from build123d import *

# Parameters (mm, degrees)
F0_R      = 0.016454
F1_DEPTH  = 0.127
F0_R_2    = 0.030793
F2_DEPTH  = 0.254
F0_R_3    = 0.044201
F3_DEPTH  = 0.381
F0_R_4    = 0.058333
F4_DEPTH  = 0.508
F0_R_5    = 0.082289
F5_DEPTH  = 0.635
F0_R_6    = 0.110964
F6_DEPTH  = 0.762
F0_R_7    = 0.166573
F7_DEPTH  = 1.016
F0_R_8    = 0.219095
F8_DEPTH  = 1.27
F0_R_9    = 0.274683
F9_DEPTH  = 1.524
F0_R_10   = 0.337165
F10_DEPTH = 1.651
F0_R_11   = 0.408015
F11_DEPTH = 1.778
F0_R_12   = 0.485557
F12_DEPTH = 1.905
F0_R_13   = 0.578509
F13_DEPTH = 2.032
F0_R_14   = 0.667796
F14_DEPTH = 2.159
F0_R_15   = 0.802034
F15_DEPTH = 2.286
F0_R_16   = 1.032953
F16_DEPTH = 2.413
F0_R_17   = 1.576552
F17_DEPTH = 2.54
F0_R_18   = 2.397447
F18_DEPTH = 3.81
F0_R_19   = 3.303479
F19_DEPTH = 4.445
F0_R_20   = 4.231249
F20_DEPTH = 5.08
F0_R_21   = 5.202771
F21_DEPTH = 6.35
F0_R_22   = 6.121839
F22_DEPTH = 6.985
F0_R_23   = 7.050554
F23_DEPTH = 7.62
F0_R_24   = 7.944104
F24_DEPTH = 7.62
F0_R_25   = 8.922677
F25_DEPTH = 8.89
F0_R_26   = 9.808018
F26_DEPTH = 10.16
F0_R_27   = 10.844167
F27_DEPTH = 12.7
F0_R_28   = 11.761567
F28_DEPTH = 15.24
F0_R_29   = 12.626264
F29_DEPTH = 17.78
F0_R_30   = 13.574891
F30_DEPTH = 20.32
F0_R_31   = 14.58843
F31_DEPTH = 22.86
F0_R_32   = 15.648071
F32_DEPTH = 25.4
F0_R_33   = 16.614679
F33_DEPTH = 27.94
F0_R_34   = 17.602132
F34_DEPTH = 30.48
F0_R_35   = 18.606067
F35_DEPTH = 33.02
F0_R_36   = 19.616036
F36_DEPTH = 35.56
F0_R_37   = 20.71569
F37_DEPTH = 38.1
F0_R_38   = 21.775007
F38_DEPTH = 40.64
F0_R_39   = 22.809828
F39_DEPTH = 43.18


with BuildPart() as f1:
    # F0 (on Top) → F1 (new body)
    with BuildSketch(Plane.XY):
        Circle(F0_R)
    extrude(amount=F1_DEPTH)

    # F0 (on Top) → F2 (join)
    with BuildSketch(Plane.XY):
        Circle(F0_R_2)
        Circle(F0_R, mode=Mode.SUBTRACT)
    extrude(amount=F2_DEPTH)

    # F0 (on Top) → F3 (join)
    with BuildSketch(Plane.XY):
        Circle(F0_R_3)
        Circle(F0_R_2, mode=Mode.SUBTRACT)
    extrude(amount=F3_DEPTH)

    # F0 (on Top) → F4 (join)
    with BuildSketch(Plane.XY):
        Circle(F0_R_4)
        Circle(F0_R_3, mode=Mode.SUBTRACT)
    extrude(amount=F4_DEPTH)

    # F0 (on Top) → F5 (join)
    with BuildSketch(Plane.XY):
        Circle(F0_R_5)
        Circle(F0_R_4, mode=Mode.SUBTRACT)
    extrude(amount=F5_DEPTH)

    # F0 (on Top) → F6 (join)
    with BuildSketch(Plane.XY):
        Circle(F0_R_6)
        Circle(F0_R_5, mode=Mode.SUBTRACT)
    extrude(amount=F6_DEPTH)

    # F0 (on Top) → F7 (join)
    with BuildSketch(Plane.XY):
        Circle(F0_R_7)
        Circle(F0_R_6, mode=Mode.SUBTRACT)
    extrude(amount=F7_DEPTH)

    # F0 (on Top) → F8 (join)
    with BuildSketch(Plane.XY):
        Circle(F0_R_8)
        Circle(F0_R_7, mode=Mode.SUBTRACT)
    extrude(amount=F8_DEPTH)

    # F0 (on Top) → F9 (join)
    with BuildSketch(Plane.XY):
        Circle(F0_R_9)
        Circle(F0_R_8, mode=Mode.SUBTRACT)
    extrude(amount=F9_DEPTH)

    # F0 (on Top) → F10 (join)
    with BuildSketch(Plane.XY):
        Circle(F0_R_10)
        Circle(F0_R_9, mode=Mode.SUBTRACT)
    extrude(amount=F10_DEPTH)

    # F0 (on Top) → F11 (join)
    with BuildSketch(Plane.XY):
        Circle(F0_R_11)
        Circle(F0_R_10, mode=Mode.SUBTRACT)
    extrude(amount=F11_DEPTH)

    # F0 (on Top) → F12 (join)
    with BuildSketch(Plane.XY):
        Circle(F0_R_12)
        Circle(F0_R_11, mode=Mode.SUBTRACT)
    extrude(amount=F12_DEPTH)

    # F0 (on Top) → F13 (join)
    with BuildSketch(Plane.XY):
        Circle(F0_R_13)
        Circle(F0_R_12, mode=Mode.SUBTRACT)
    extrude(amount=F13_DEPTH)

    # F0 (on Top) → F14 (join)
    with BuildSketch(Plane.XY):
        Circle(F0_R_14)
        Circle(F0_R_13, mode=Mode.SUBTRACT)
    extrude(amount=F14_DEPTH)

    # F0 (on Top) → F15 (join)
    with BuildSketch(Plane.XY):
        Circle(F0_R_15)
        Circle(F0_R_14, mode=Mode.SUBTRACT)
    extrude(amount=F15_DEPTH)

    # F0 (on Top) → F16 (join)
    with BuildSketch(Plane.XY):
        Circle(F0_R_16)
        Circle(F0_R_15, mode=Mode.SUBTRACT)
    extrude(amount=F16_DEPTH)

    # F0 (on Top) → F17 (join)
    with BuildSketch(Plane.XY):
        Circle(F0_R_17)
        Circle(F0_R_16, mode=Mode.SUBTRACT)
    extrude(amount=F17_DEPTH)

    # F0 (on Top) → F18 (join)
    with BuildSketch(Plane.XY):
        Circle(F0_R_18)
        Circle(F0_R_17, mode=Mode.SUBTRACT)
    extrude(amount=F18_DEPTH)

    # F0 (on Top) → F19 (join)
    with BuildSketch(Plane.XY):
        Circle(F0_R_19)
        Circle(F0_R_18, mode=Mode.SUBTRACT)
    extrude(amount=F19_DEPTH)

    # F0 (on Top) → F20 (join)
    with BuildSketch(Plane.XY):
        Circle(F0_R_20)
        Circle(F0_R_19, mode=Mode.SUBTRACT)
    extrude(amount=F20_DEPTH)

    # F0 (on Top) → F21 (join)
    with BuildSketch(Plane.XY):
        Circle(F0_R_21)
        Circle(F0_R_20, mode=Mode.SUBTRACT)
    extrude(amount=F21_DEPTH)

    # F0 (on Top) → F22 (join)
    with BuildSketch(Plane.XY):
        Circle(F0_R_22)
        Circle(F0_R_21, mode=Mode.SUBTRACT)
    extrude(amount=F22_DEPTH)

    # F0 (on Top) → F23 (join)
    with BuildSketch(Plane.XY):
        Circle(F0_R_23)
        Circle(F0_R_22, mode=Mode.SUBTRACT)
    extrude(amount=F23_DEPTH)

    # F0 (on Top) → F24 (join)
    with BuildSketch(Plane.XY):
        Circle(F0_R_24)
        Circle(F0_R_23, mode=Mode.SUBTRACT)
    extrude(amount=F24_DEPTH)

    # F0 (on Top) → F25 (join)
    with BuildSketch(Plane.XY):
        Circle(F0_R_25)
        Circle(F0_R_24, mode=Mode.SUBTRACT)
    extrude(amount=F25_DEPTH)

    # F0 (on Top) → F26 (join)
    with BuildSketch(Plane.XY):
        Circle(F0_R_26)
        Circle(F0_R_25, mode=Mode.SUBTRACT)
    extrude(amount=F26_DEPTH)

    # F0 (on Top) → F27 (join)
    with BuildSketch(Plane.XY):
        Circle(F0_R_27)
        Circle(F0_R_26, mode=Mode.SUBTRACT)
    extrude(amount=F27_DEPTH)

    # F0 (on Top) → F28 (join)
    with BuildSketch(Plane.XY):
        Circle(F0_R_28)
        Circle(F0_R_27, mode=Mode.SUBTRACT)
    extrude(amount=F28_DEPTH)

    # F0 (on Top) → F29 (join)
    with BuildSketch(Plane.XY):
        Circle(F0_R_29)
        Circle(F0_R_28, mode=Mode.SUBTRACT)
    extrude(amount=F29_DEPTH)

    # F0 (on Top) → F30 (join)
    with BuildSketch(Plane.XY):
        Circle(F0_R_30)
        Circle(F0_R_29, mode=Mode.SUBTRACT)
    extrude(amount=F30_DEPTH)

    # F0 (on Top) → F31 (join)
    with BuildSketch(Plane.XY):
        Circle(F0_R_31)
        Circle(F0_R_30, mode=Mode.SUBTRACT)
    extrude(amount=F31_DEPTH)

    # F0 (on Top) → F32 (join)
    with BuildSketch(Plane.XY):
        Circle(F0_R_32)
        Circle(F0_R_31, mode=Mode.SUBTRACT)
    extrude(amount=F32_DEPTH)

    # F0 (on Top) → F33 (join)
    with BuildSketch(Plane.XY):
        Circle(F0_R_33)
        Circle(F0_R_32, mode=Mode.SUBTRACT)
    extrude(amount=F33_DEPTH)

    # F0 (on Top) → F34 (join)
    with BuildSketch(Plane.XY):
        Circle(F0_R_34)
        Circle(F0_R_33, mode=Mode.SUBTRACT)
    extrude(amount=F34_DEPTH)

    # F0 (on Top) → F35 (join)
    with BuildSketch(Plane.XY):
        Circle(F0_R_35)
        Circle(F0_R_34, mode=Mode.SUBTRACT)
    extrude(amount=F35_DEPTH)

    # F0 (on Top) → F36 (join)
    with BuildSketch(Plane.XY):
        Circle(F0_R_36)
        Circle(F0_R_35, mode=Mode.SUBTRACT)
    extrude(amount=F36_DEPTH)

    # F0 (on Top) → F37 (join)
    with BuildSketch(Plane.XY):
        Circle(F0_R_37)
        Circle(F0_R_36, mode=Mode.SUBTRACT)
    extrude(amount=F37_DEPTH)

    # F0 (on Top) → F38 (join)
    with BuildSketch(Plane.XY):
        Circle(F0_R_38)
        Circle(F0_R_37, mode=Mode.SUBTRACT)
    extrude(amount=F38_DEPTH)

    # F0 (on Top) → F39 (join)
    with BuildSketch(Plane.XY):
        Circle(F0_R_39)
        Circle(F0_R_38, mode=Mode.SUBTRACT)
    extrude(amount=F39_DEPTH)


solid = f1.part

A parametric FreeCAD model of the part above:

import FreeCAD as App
import Part
import Sketcher
from FreeCAD import Vector
Q = App.Units.Quantity

doc = App.newDocument("Part")
params = doc.addObject("Spreadsheet::Sheet", "Params")
for row, (alias, value) in enumerate([
    ("pad1_length", "0.005 in"),
    ("pad2_length", "0.01 in"),
    ("pad3_length", "0.015 in"),
    ("pad4_length", "0.02 in"),
    ("pad5_length", "0.025 in"),
    ("pad6_length", "0.03 in"),
    ("pad7_length", "0.04 in"),
    ("pad8_length", "0.05 in"),
    ("pad9_length", "0.06 in"),
    ("pad10_length", "0.065 in"),
    ("pad11_length", "0.07 in"),
    ("pad12_length", "0.075 in"),
    ("pad13_length", "0.08 in"),
    ("pad14_length", "0.085 in"),
    ("pad15_length", "0.09 in"),
    ("pad16_length", "0.095 in"),
    ("pad17_length", "0.1 in"),
    ("pad18_length", "0.15 in"),
    ("pad19_length", "0.175 in"),
    ("pad20_length", "0.2 in"),
    ("pad21_length", "0.25 in"),
    ("pad22_length", "0.275 in"),
    ("pad23_length", "0.3 in"),
    ("pad24_length", "0.3 in"),
    ("pad25_length", "0.35 in"),
    ("pad26_length", "0.4 in"),
    ("pad27_length", "0.5 in"),
    ("pad28_length", "0.6 in"),
    ("pad29_length", "0.7 in"),
    ("pad30_length", "0.8 in"),
    ("pad31_length", "0.9 in"),
    ("pad32_length", "1 in"),
    ("pad33_length", "1.1 in"),
    ("pad34_length", "1.2 in"),
    ("pad35_length", "1.3 in"),
    ("pad36_length", "1.4 in"),
    ("pad37_length", "1.5 in"),
    ("pad38_length", "1.6 in"),
    ("pad39_length", "1.7 in"),
], start=1):
    params.set(f"A{row}", alias)
    params.set(f"B{row}", "=" + value)
    params.setAlias(f"B{row}", alias)

body = doc.addObject("PartDesign::Body", "Body")

sketch1 = doc.addObject("Sketcher::SketchObject", "Sketch")
body.addObject(sketch1)
sketch1.AttachmentSupport = (doc.XY_Plane, [""])
sketch1.MapMode = "FlatFace"
sketch1.addGeometry(Part.Circle(Vector(0, 0, 0), Vector(0, 0, 1), 0.016), False)
sketch1.addConstraint(Sketcher.Constraint("Coincident", 0, 3, -1, 1))
sketch1.addConstraint(Sketcher.Constraint("Diameter", 0, Q("0.032908 mm")))
pad1 = doc.addObject("PartDesign::Pad", "Pad")
body.addObject(pad1)
pad1.Profile = sketch1
pad1.setExpression("Length", "Params.pad1_length")

sketch2 = doc.addObject("Sketcher::SketchObject", "Sketch001")
body.addObject(sketch2)
sketch2.AttachmentSupport = (doc.XY_Plane, [""])
sketch2.MapMode = "FlatFace"
sketch2.addGeometry(Part.Circle(Vector(0, 0, 0), Vector(0, 0, 1), 0.031), False)
sketch2.addGeometry(Part.Circle(Vector(0, 0, 0), Vector(0, 0, 1), 0.016), False)
sketch2.addConstraint(Sketcher.Constraint("Coincident", 0, 3, -1, 1))
sketch2.addConstraint(Sketcher.Constraint("Coincident", 1, 3, -1, 1))
sketch2.addConstraint(Sketcher.Constraint("Diameter", 0, Q("0.061586 mm")))
sketch2.addConstraint(Sketcher.Constraint("Diameter", 1, Q("0.032908 mm")))
pad2 = doc.addObject("PartDesign::Pad", "Pad001")
body.addObject(pad2)
pad2.Profile = sketch2
pad2.setExpression("Length", "Params.pad2_length")

sketch3 = doc.addObject("Sketcher::SketchObject", "Sketch002")
body.addObject(sketch3)
sketch3.AttachmentSupport = (doc.XY_Plane, [""])
sketch3.MapMode = "FlatFace"
sketch3.addGeometry(Part.Circle(Vector(0, 0, 0), Vector(0, 0, 1), 0.044), False)
sketch3.addGeometry(Part.Circle(Vector(0, 0, 0), Vector(0, 0, 1), 0.031), False)
sketch3.addConstraint(Sketcher.Constraint("Coincident", 0, 3, -1, 1))
sketch3.addConstraint(Sketcher.Constraint("Coincident", 1, 3, -1, 1))
sketch3.addConstraint(Sketcher.Constraint("Diameter", 0, Q("0.088402 mm")))
sketch3.addConstraint(Sketcher.Constraint("Diameter", 1, Q("0.061586 mm")))
pad3 = doc.addObject("PartDesign::Pad", "Pad002")
body.addObject(pad3)
pad3.Profile = sketch3
pad3.setExpression("Length", "Params.pad3_length")

sketch4 = doc.addObject("Sketcher::SketchObject", "Sketch003")
body.addObject(sketch4)
sketch4.AttachmentSupport = (doc.XY_Plane, [""])
sketch4.MapMode = "FlatFace"
sketch4.addGeometry(Part.Circle(Vector(0, 0, 0), Vector(0, 0, 1), 0.058), False)
sketch4.addGeometry(Part.Circle(Vector(0, 0, 0), Vector(0, 0, 1), 0.044), False)
sketch4.addConstraint(Sketcher.Constraint("Coincident", 0, 3, -1, 1))
sketch4.addConstraint(Sketcher.Constraint("Coincident", 1, 3, -1, 1))
sketch4.addConstraint(Sketcher.Constraint("Diameter", 1, Q("0.088402 mm")))
sketch4.addConstraint(Sketcher.Constraint("Diameter", 0, Q("0.116666 mm")))
pad4 = doc.addObject("PartDesign::Pad", "Pad003")
body.addObject(pad4)
pad4.Profile = sketch4
pad4.setExpression("Length", "Params.pad4_length")

sketch5 = doc.addObject("Sketcher::SketchObject", "Sketch004")
body.addObject(sketch5)
sketch5.AttachmentSupport = (doc.XY_Plane, [""])
sketch5.MapMode = "FlatFace"
sketch5.addGeometry(Part.Circle(Vector(0, 0, 0), Vector(0, 0, 1), 0.08), False)
sketch5.addGeometry(Part.Circle(Vector(0, 0, 0), Vector(0, 0, 1), 0.06), False)
sketch5.addConstraint(Sketcher.Constraint("Coincident", 0, 3, -1, 1))
sketch5.addConstraint(Sketcher.Constraint("Coincident", 1, 3, -1, 1))
sketch5.addConstraint(Sketcher.Constraint("Diameter", 0, Q("0.164578 mm")))
sketch5.addConstraint(Sketcher.Constraint("Diameter", 1, Q("0.116666 mm")))
pad5 = doc.addObject("PartDesign::Pad", "Pad004")
body.addObject(pad5)
pad5.Profile = sketch5
pad5.setExpression("Length", "Params.pad5_length")

sketch6 = doc.addObject("Sketcher::SketchObject", "Sketch005")
body.addObject(sketch6)
sketch6.AttachmentSupport = (doc.XY_Plane, [""])
sketch6.MapMode = "FlatFace"
sketch6.addGeometry(Part.Circle(Vector(0, 0, 0), Vector(0, 0, 1), 0.11), False)
sketch6.addGeometry(Part.Circle(Vector(0, 0, 0), Vector(0, 0, 1), 0.08), False)
sketch6.addConstraint(Sketcher.Constraint("Coincident", 0, 3, -1, 1))
sketch6.addConstraint(Sketcher.Constraint("Coincident", 1, 3, -1, 1))
sketch6.addConstraint(Sketcher.Constraint("Diameter", 0, Q("0.221928 mm")))
sketch6.addConstraint(Sketcher.Constraint("Diameter", 1, Q("0.164578 mm")))
pad6 = doc.addObject("PartDesign::Pad", "Pad005")
body.addObject(pad6)
pad6.Profile = sketch6
pad6.setExpression("Length", "Params.pad6_length")

sketch7 = doc.addObject("Sketcher::SketchObject", "Sketch006")
body.addObject(sketch7)
sketch7.AttachmentSupport = (doc.XY_Plane, [""])
sketch7.MapMode = "FlatFace"
sketch7.addGeometry(Part.Circle(Vector(0, 0, 0), Vector(0, 0, 1), 0.17), False)
sketch7.addGeometry(Part.Circle(Vector(0, 0, 0), Vector(0, 0, 1), 0.11), False)
sketch7.addConstraint(Sketcher.Constraint("Coincident", 0, 3, -1, 1))
sketch7.addConstraint(Sketcher.Constraint("Coincident", 1, 3, -1, 1))
sketch7.addConstraint(Sketcher.Constraint("Diameter", 0, Q("0.333146 mm")))
sketch7.addConstraint(Sketcher.Constraint("Diameter", 1, Q("0.221928 mm")))
pad7 = doc.addObject("PartDesign::Pad", "Pad006")
body.addObject(pad7)
pad7.Profile = sketch7
pad7.setExpression("Length", "Params.pad7_length")

sketch8 = doc.addObject("Sketcher::SketchObject", "Sketch007")
body.addObject(sketch8)
sketch8.AttachmentSupport = (doc.XY_Plane, [""])
sketch8.MapMode = "FlatFace"
sketch8.addGeometry(Part.Circle(Vector(0, 0, 0), Vector(0, 0, 1), 0.22), False)
sketch8.addGeometry(Part.Circle(Vector(0, 0, 0), Vector(0, 0, 1), 0.17), False)
sketch8.addConstraint(Sketcher.Constraint("Coincident", 0, 3, -1, 1))
sketch8.addConstraint(Sketcher.Constraint("Coincident", 1, 3, -1, 1))
sketch8.addConstraint(Sketcher.Constraint("Diameter", 0, Q("0.43819 mm")))
sketch8.addConstraint(Sketcher.Constraint("Diameter", 1, Q("0.333146 mm")))
pad8 = doc.addObject("PartDesign::Pad", "Pad007")
body.addObject(pad8)
pad8.Profile = sketch8
pad8.setExpression("Length", "Params.pad8_length")

sketch9 = doc.addObject("Sketcher::SketchObject", "Sketch008")
body.addObject(sketch9)
sketch9.AttachmentSupport = (doc.XY_Plane, [""])
sketch9.MapMode = "FlatFace"
sketch9.addGeometry(Part.Circle(Vector(0, 0, 0), Vector(0, 0, 1), 0.27), False)
sketch9.addGeometry(Part.Circle(Vector(0, 0, 0), Vector(0, 0, 1), 0.22), False)
sketch9.addConstraint(Sketcher.Constraint("Coincident", 0, 3, -1, 1))
sketch9.addConstraint(Sketcher.Constraint("Coincident", 1, 3, -1, 1))
sketch9.addConstraint(Sketcher.Constraint("Diameter", 1, Q("0.43819 mm")))
sketch9.addConstraint(Sketcher.Constraint("Diameter", 0, Q("0.549366 mm")))
pad9 = doc.addObject("PartDesign::Pad", "Pad008")
body.addObject(pad9)
pad9.Profile = sketch9
pad9.setExpression("Length", "Params.pad9_length")

sketch10 = doc.addObject("Sketcher::SketchObject", "Sketch009")
body.addObject(sketch10)
sketch10.AttachmentSupport = (doc.XY_Plane, [""])
sketch10.MapMode = "FlatFace"
sketch10.addGeometry(Part.Circle(Vector(0, 0, 0), Vector(0, 0, 1), 0.34), False)
sketch10.addGeometry(Part.Circle(Vector(0, 0, 0), Vector(0, 0, 1), 0.27), False)
sketch10.addConstraint(Sketcher.Constraint("Coincident", 0, 3, -1, 1))
sketch10.addConstraint(Sketcher.Constraint("Coincident", 1, 3, -1, 1))
sketch10.addConstraint(Sketcher.Constraint("Diameter", 0, Q("0.67433 mm")))
sketch10.addConstraint(Sketcher.Constraint("Diameter", 1, Q("0.549366 mm")))
pad10 = doc.addObject("PartDesign::Pad", "Pad009")
body.addObject(pad10)
pad10.Profile = sketch10
pad10.setExpression("Length", "Params.pad10_length")

sketch11 = doc.addObject("Sketcher::SketchObject", "Sketch010")
body.addObject(sketch11)
sketch11.AttachmentSupport = (doc.XY_Plane, [""])
sketch11.MapMode = "FlatFace"
sketch11.addGeometry(Part.Circle(Vector(0, 0, 0), Vector(0, 0, 1), 0.41), False)
sketch11.addGeometry(Part.Circle(Vector(0, 0, 0), Vector(0, 0, 1), 0.34), False)
sketch11.addConstraint(Sketcher.Constraint("Coincident", 0, 3, -1, 1))
sketch11.addConstraint(Sketcher.Constraint("Coincident", 1, 3, -1, 1))
sketch11.addConstraint(Sketcher.Constraint("Diameter", 0, Q("0.81603 mm")))
sketch11.addConstraint(Sketcher.Constraint("Diameter", 1, Q("0.67433 mm")))
pad11 = doc.addObject("PartDesign::Pad", "Pad010")
body.addObject(pad11)
pad11.Profile = sketch11
pad11.setExpression("Length", "Params.pad11_length")

sketch12 = doc.addObject("Sketcher::SketchObject", "Sketch011")
body.addObject(sketch12)
sketch12.AttachmentSupport = (doc.XY_Plane, [""])
sketch12.MapMode = "FlatFace"
sketch12.addGeometry(Part.Circle(Vector(0, 0, 0), Vector(0, 0, 1), 0.49), False)
sketch12.addGeometry(Part.Circle(Vector(0, 0, 0), Vector(0, 0, 1), 0.41), False)
sketch12.addConstraint(Sketcher.Constraint("Coincident", 0, 3, -1, 1))
sketch12.addConstraint(Sketcher.Constraint("Coincident", 1, 3, -1, 1))
sketch12.addConstraint(Sketcher.Constraint("Diameter", 1, Q("0.81603 mm")))
sketch12.addConstraint(Sketcher.Constraint("Diameter", 0, Q("0.971114 mm")))
pad12 = doc.addObject("PartDesign::Pad", "Pad011")
body.addObject(pad12)
pad12.Profile = sketch12
pad12.setExpression("Length", "Params.pad12_length")

sketch13 = doc.addObject("Sketcher::SketchObject", "Sketch012")
body.addObject(sketch13)
sketch13.AttachmentSupport = (doc.XY_Plane, [""])
sketch13.MapMode = "FlatFace"
sketch13.addGeometry(Part.Circle(Vector(0, 0, 0), Vector(0, 0, 1), 0.58), False)
sketch13.addGeometry(Part.Circle(Vector(0, 0, 0), Vector(0, 0, 1), 0.49), False)
sketch13.addConstraint(Sketcher.Constraint("Coincident", 0, 3, -1, 1))
sketch13.addConstraint(Sketcher.Constraint("Coincident", 1, 3, -1, 1))
sketch13.addConstraint(Sketcher.Constraint("Diameter", 0, Q("1.157018 mm")))
sketch13.addConstraint(Sketcher.Constraint("Diameter", 1, Q("0.971114 mm")))
pad13 = doc.addObject("PartDesign::Pad", "Pad012")
body.addObject(pad13)
pad13.Profile = sketch13
pad13.setExpression("Length", "Params.pad13_length")

sketch14 = doc.addObject("Sketcher::SketchObject", "Sketch013")
body.addObject(sketch14)
sketch14.AttachmentSupport = (doc.XY_Plane, [""])
sketch14.MapMode = "FlatFace"
sketch14.addGeometry(Part.Circle(Vector(0, 0, 0), Vector(0, 0, 1), 0.7), False)
sketch14.addGeometry(Part.Circle(Vector(0, 0, 0), Vector(0, 0, 1), 0.6), False)
sketch14.addConstraint(Sketcher.Constraint("Coincident", 0, 3, -1, 1))
sketch14.addConstraint(Sketcher.Constraint("Coincident", 1, 3, -1, 1))
sketch14.addConstraint(Sketcher.Constraint("Diameter", 0, Q("1.335592 mm")))
sketch14.addConstraint(Sketcher.Constraint("Diameter", 1, Q("1.157018 mm")))
pad14 = doc.addObject("PartDesign::Pad", "Pad013")
body.addObject(pad14)
pad14.Profile = sketch14
pad14.setExpression("Length", "Params.pad14_length")

sketch15 = doc.addObject("Sketcher::SketchObject", "Sketch014")
body.addObject(sketch15)
sketch15.AttachmentSupport = (doc.XY_Plane, [""])
sketch15.MapMode = "FlatFace"
sketch15.addGeometry(Part.Circle(Vector(0, 0, 0), Vector(0, 0, 1), 0.8), False)
sketch15.addGeometry(Part.Circle(Vector(0, 0, 0), Vector(0, 0, 1), 0.7), False)
sketch15.addConstraint(Sketcher.Constraint("Coincident", 0, 3, -1, 1))
sketch15.addConstraint(Sketcher.Constraint("Coincident", 1, 3, -1, 1))
sketch15.addConstraint(Sketcher.Constraint("Diameter", 1, Q("1.335592 mm")))
sketch15.addConstraint(Sketcher.Constraint("Diameter", 0, Q("1.604068 mm")))
pad15 = doc.addObject("PartDesign::Pad", "Pad014")
body.addObject(pad15)
pad15.Profile = sketch15
pad15.setExpression("Length", "Params.pad15_length")

sketch16 = doc.addObject("Sketcher::SketchObject", "Sketch015")
body.addObject(sketch16)
sketch16.AttachmentSupport = (doc.XY_Plane, [""])
sketch16.MapMode = "FlatFace"
sketch16.addGeometry(Part.Circle(Vector(0, 0, 0), Vector(0, 0, 1), 1), False)
sketch16.addGeometry(Part.Circle(Vector(0, 0, 0), Vector(0, 0, 1), 0.8), False)
sketch16.addConstraint(Sketcher.Constraint("Coincident", 0, 3, -1, 1))
sketch16.addConstraint(Sketcher.Constraint("Coincident", 1, 3, -1, 1))
sketch16.addConstraint(Sketcher.Constraint("Diameter", 0, Q("2.065906 mm")))
sketch16.addConstraint(Sketcher.Constraint("Diameter", 1, Q("1.604068 mm")))
pad16 = doc.addObject("PartDesign::Pad", "Pad015")
body.addObject(pad16)
pad16.Profile = sketch16
pad16.setExpression("Length", "Params.pad16_length")

sketch17 = doc.addObject("Sketcher::SketchObject", "Sketch016")
body.addObject(sketch17)
sketch17.AttachmentSupport = (doc.XY_Plane, [""])
sketch17.MapMode = "FlatFace"
sketch17.addGeometry(Part.Circle(Vector(0, 0, 0), Vector(0, 0, 1), 1.6), False)
sketch17.addGeometry(Part.Circle(Vector(0, 0, 0), Vector(0, 0, 1), 1), False)
sketch17.addConstraint(Sketcher.Constraint("Coincident", 0, 3, -1, 1))
sketch17.addConstraint(Sketcher.Constraint("Coincident", 1, 3, -1, 1))
sketch17.addConstraint(Sketcher.Constraint("Diameter", 0, Q("3.153104 mm")))
sketch17.addConstraint(Sketcher.Constraint("Diameter", 1, Q("2.065906 mm")))
pad17 = doc.addObject("PartDesign::Pad", "Pad016")
body.addObject(pad17)
pad17.Profile = sketch17
pad17.setExpression("Length", "Params.pad17_length")

sketch18 = doc.addObject("Sketcher::SketchObject", "Sketch017")
body.addObject(sketch18)
sketch18.AttachmentSupport = (doc.XY_Plane, [""])
sketch18.MapMode = "FlatFace"
sketch18.addGeometry(Part.Circle(Vector(0, 0, 0), Vector(0, 0, 1), 2.4), False)
sketch18.addGeometry(Part.Circle(Vector(0, 0, 0), Vector(0, 0, 1), 1.6), False)
sketch18.addConstraint(Sketcher.Constraint("Coincident", 0, 3, -1, 1))
sketch18.addConstraint(Sketcher.Constraint("Coincident", 1, 3, -1, 1))
sketch18.addConstraint(Sketcher.Constraint("Diameter", 0, Q("4.794894 mm")))
sketch18.addConstraint(Sketcher.Constraint("Diameter", 1, Q("3.153104 mm")))
pad18 = doc.addObject("PartDesign::Pad", "Pad017")
body.addObject(pad18)
pad18.Profile = sketch18
pad18.setExpression("Length", "Params.pad18_length")

sketch19 = doc.addObject("Sketcher::SketchObject", "Sketch018")
body.addObject(sketch19)
sketch19.AttachmentSupport = (doc.XY_Plane, [""])
sketch19.MapMode = "FlatFace"
sketch19.addGeometry(Part.Circle(Vector(0, 0, 0), Vector(0, 0, 1), 3.3), False)
sketch19.addGeometry(Part.Circle(Vector(0, 0, 0), Vector(0, 0, 1), 2.4), False)
sketch19.addConstraint(Sketcher.Constraint("Coincident", 0, 3, -1, 1))
sketch19.addConstraint(Sketcher.Constraint("Coincident", 1, 3, -1, 1))
sketch19.addConstraint(Sketcher.Constraint("Diameter", 0, Q("6.606958 mm")))
sketch19.addConstraint(Sketcher.Constraint("Diameter", 1, Q("4.794894 mm")))
pad19 = doc.addObject("PartDesign::Pad", "Pad018")
body.addObject(pad19)
pad19.Profile = sketch19
pad19.setExpression("Length", "Params.pad19_length")

sketch20 = doc.addObject("Sketcher::SketchObject", "Sketch019")
body.addObject(sketch20)
sketch20.AttachmentSupport = (doc.XY_Plane, [""])
sketch20.MapMode = "FlatFace"
sketch20.addGeometry(Part.Circle(Vector(0, 0, 0), Vector(0, 0, 1), 4.2), False)
sketch20.addGeometry(Part.Circle(Vector(0, 0, 0), Vector(0, 0, 1), 3.3), False)
sketch20.addConstraint(Sketcher.Constraint("Coincident", 0, 3, -1, 1))
sketch20.addConstraint(Sketcher.Constraint("Coincident", 1, 3, -1, 1))
sketch20.addConstraint(Sketcher.Constraint("Diameter", 0, Q("8.462498 mm")))
sketch20.addConstraint(Sketcher.Constraint("Diameter", 1, Q("6.606958 mm")))
pad20 = doc.addObject("PartDesign::Pad", "Pad019")
body.addObject(pad20)
pad20.Profile = sketch20
pad20.setExpression("Length", "Params.pad20_length")

sketch21 = doc.addObject("Sketcher::SketchObject", "Sketch020")
body.addObject(sketch21)
sketch21.AttachmentSupport = (doc.XY_Plane, [""])
sketch21.MapMode = "FlatFace"
sketch21.addGeometry(Part.Circle(Vector(0, 0, 0), Vector(0, 0, 1), 5.2), False)
sketch21.addGeometry(Part.Circle(Vector(0, 0, 0), Vector(0, 0, 1), 4.2), False)
sketch21.addConstraint(Sketcher.Constraint("Coincident", 0, 3, -1, 1))
sketch21.addConstraint(Sketcher.Constraint("Coincident", 1, 3, -1, 1))
sketch21.addConstraint(Sketcher.Constraint("Diameter", 0, Q("10.405542 mm")))
sketch21.addConstraint(Sketcher.Constraint("Diameter", 1, Q("8.462498 mm")))
pad21 = doc.addObject("PartDesign::Pad", "Pad020")
body.addObject(pad21)
pad21.Profile = sketch21
pad21.setExpression("Length", "Params.pad21_length")

sketch22 = doc.addObject("Sketcher::SketchObject", "Sketch021")
body.addObject(sketch22)
sketch22.AttachmentSupport = (doc.XY_Plane, [""])
sketch22.MapMode = "FlatFace"
sketch22.addGeometry(Part.Circle(Vector(0, 0, 0), Vector(0, 0, 1), 6), False)
sketch22.addGeometry(Part.Circle(Vector(0, 0, 0), Vector(0, 0, 1), 5), False)
sketch22.addConstraint(Sketcher.Constraint("Coincident", 0, 3, -1, 1))
sketch22.addConstraint(Sketcher.Constraint("Coincident", 1, 3, -1, 1))
sketch22.addConstraint(Sketcher.Constraint("Diameter", 0, Q("12.243678 mm")))
sketch22.addConstraint(Sketcher.Constraint("Diameter", 1, Q("10.405542 mm")))
pad22 = doc.addObject("PartDesign::Pad", "Pad021")
body.addObject(pad22)
pad22.Profile = sketch22
pad22.setExpression("Length", "Params.pad22_length")

sketch23 = doc.addObject("Sketcher::SketchObject", "Sketch022")
body.addObject(sketch23)
sketch23.AttachmentSupport = (doc.XY_Plane, [""])
sketch23.MapMode = "FlatFace"
sketch23.addGeometry(Part.Circle(Vector(0, 0, 0), Vector(0, 0, 1), 7), False)
sketch23.addGeometry(Part.Circle(Vector(0, 0, 0), Vector(0, 0, 1), 6), False)
sketch23.addConstraint(Sketcher.Constraint("Coincident", 0, 3, -1, 1))
sketch23.addConstraint(Sketcher.Constraint("Coincident", 1, 3, -1, 1))
sketch23.addConstraint(Sketcher.Constraint("Diameter", 0, Q("14.101108 mm")))
sketch23.addConstraint(Sketcher.Constraint("Diameter", 1, Q("12.243678 mm")))
pad23 = doc.addObject("PartDesign::Pad", "Pad022")
body.addObject(pad23)
pad23.Profile = sketch23
pad23.setExpression("Length", "Params.pad23_length")

sketch24 = doc.addObject("Sketcher::SketchObject", "Sketch023")
body.addObject(sketch24)
sketch24.AttachmentSupport = (doc.XY_Plane, [""])
sketch24.MapMode = "FlatFace"
sketch24.addGeometry(Part.Circle(Vector(0, 0, 0), Vector(0, 0, 1), 8), False)
sketch24.addGeometry(Part.Circle(Vector(0, 0, 0), Vector(0, 0, 1), 7), False)
sketch24.addConstraint(Sketcher.Constraint("Coincident", 0, 3, -1, 1))
sketch24.addConstraint(Sketcher.Constraint("Coincident", 1, 3, -1, 1))
sketch24.addConstraint(Sketcher.Constraint("Diameter", 0, Q("15.888208 mm")))
sketch24.addConstraint(Sketcher.Constraint("Diameter", 1, Q("14.101108 mm")))
pad24 = doc.addObject("PartDesign::Pad", "Pad023")
body.addObject(pad24)
pad24.Profile = sketch24
pad24.setExpression("Length", "Params.pad24_length")

sketch25 = doc.addObject("Sketcher::SketchObject", "Sketch024")
body.addObject(sketch25)
sketch25.AttachmentSupport = (doc.XY_Plane, [""])
sketch25.MapMode = "FlatFace"
sketch25.addGeometry(Part.Circle(Vector(0, 0, 0), Vector(0, 0, 1), 9), False)
sketch25.addGeometry(Part.Circle(Vector(0, 0, 0), Vector(0, 0, 1), 8), False)
sketch25.addConstraint(Sketcher.Constraint("Coincident", 0, 3, -1, 1))
sketch25.addConstraint(Sketcher.Constraint("Coincident", 1, 3, -1, 1))
sketch25.addConstraint(Sketcher.Constraint("Diameter", 0, Q("17.845354 mm")))
sketch25.addConstraint(Sketcher.Constraint("Diameter", 1, Q("15.888208 mm")))
pad25 = doc.addObject("PartDesign::Pad", "Pad024")
body.addObject(pad25)
pad25.Profile = sketch25
pad25.setExpression("Length", "Params.pad25_length")

sketch26 = doc.addObject("Sketcher::SketchObject", "Sketch025")
body.addObject(sketch26)
sketch26.AttachmentSupport = (doc.XY_Plane, [""])
sketch26.MapMode = "FlatFace"
sketch26.addGeometry(Part.Circle(Vector(0, 0, 0), Vector(0, 0, 1), 10), False)
sketch26.addGeometry(Part.Circle(Vector(0, 0, 0), Vector(0, 0, 1), 9), False)
sketch26.addConstraint(Sketcher.Constraint("Coincident", 0, 3, -1, 1))
sketch26.addConstraint(Sketcher.Constraint("Coincident", 1, 3, -1, 1))
sketch26.addConstraint(Sketcher.Constraint("Diameter", 0, Q("19.616036 mm")))
sketch26.addConstraint(Sketcher.Constraint("Diameter", 1, Q("17.845354 mm")))
pad26 = doc.addObject("PartDesign::Pad", "Pad025")
body.addObject(pad26)
pad26.Profile = sketch26
pad26.setExpression("Length", "Params.pad26_length")

sketch27 = doc.addObject("Sketcher::SketchObject", "Sketch026")
body.addObject(sketch27)
sketch27.AttachmentSupport = (doc.XY_Plane, [""])
sketch27.MapMode = "FlatFace"
sketch27.addGeometry(Part.Circle(Vector(0, 0, 0), Vector(0, 0, 1), 11), False)
sketch27.addGeometry(Part.Circle(Vector(0, 0, 0), Vector(0, 0, 1), 10), False)
sketch27.addConstraint(Sketcher.Constraint("Coincident", 0, 3, -1, 1))
sketch27.addConstraint(Sketcher.Constraint("Coincident", 1, 3, -1, 1))
sketch27.addConstraint(Sketcher.Constraint("Diameter", 0, Q("21.688334 mm")))
sketch27.addConstraint(Sketcher.Constraint("Diameter", 1, Q("19.616036 mm")))
pad27 = doc.addObject("PartDesign::Pad", "Pad026")
body.addObject(pad27)
pad27.Profile = sketch27
pad27.setExpression("Length", "Params.pad27_length")

sketch28 = doc.addObject("Sketcher::SketchObject", "Sketch027")
body.addObject(sketch28)
sketch28.AttachmentSupport = (doc.XY_Plane, [""])
sketch28.MapMode = "FlatFace"
sketch28.addGeometry(Part.Circle(Vector(0, 0, 0), Vector(0, 0, 1), 12), False)
sketch28.addGeometry(Part.Circle(Vector(0, 0, 0), Vector(0, 0, 1), 11), False)
sketch28.addConstraint(Sketcher.Constraint("Coincident", 0, 3, -1, 1))
sketch28.addConstraint(Sketcher.Constraint("Coincident", 1, 3, -1, 1))
sketch28.addConstraint(Sketcher.Constraint("Diameter", 0, Q("23.523134 mm")))
sketch28.addConstraint(Sketcher.Constraint("Diameter", 1, Q("21.688334 mm")))
pad28 = doc.addObject("PartDesign::Pad", "Pad027")
body.addObject(pad28)
pad28.Profile = sketch28
pad28.setExpression("Length", "Params.pad28_length")

sketch29 = doc.addObject("Sketcher::SketchObject", "Sketch028")
body.addObject(sketch29)
sketch29.AttachmentSupport = (doc.XY_Plane, [""])
sketch29.MapMode = "FlatFace"
sketch29.addGeometry(Part.Circle(Vector(0, 0, 0), Vector(0, 0, 1), 13), False)
sketch29.addGeometry(Part.Circle(Vector(0, 0, 0), Vector(0, 0, 1), 12), False)
sketch29.addConstraint(Sketcher.Constraint("Coincident", 0, 3, -1, 1))
sketch29.addConstraint(Sketcher.Constraint("Coincident", 1, 3, -1, 1))
sketch29.addConstraint(Sketcher.Constraint("Diameter", 0, Q("25.252528 mm")))
sketch29.addConstraint(Sketcher.Constraint("Diameter", 1, Q("23.523134 mm")))
pad29 = doc.addObject("PartDesign::Pad", "Pad028")
body.addObject(pad29)
pad29.Profile = sketch29
pad29.setExpression("Length", "Params.pad29_length")

sketch30 = doc.addObject("Sketcher::SketchObject", "Sketch029")
body.addObject(sketch30)
sketch30.AttachmentSupport = (doc.XY_Plane, [""])
sketch30.MapMode = "FlatFace"
sketch30.addGeometry(Part.Circle(Vector(0, 0, 0), Vector(0, 0, 1), 14), False)
sketch30.addGeometry(Part.Circle(Vector(0, 0, 0), Vector(0, 0, 1), 13), False)
sketch30.addConstraint(Sketcher.Constraint("Coincident", 0, 3, -1, 1))
sketch30.addConstraint(Sketcher.Constraint("Coincident", 1, 3, -1, 1))
sketch30.addConstraint(Sketcher.Constraint("Diameter", 0, Q("27.149782 mm")))
sketch30.addConstraint(Sketcher.Constraint("Diameter", 1, Q("25.252528 mm")))
pad30 = doc.addObject("PartDesign::Pad", "Pad029")
body.addObject(pad30)
pad30.Profile = sketch30
pad30.setExpression("Length", "Params.pad30_length")

sketch31 = doc.addObject("Sketcher::SketchObject", "Sketch030")
body.addObject(sketch31)
sketch31.AttachmentSupport = (doc.XY_Plane, [""])
sketch31.MapMode = "FlatFace"
sketch31.addGeometry(Part.Circle(Vector(0, 0, 0), Vector(0, 0, 1), 15), False)
sketch31.addGeometry(Part.Circle(Vector(0, 0, 0), Vector(0, 0, 1), 14), False)
sketch31.addConstraint(Sketcher.Constraint("Coincident", 0, 3, -1, 1))
sketch31.addConstraint(Sketcher.Constraint("Coincident", 1, 3, -1, 1))
sketch31.addConstraint(Sketcher.Constraint("Diameter", 0, Q("29.17686 mm")))
sketch31.addConstraint(Sketcher.Constraint("Diameter", 1, Q("27.149782 mm")))
pad31 = doc.addObject("PartDesign::Pad", "Pad030")
body.addObject(pad31)
pad31.Profile = sketch31
pad31.setExpression("Length", "Params.pad31_length")

sketch32 = doc.addObject("Sketcher::SketchObject", "Sketch031")
body.addObject(sketch32)
sketch32.AttachmentSupport = (doc.XY_Plane, [""])
sketch32.MapMode = "FlatFace"
sketch32.addGeometry(Part.Circle(Vector(0, 0, 0), Vector(0, 0, 1), 16), False)
sketch32.addGeometry(Part.Circle(Vector(0, 0, 0), Vector(0, 0, 1), 15), False)
sketch32.addConstraint(Sketcher.Constraint("Coincident", 0, 3, -1, 1))
sketch32.addConstraint(Sketcher.Constraint("Coincident", 1, 3, -1, 1))
sketch32.addConstraint(Sketcher.Constraint("Diameter", 0, Q("31.296142 mm")))
sketch32.addConstraint(Sketcher.Constraint("Diameter", 1, Q("29.17686 mm")))
pad32 = doc.addObject("PartDesign::Pad", "Pad031")
body.addObject(pad32)
pad32.Profile = sketch32
pad32.setExpression("Length", "Params.pad32_length")

sketch33 = doc.addObject("Sketcher::SketchObject", "Sketch032")
body.addObject(sketch33)
sketch33.AttachmentSupport = (doc.XY_Plane, [""])
sketch33.MapMode = "FlatFace"
sketch33.addGeometry(Part.Circle(Vector(0, 0, 0), Vector(0, 0, 1), 17), False)
sketch33.addGeometry(Part.Circle(Vector(0, 0, 0), Vector(0, 0, 1), 16), False)
sketch33.addConstraint(Sketcher.Constraint("Coincident", 0, 3, -1, 1))
sketch33.addConstraint(Sketcher.Constraint("Coincident", 1, 3, -1, 1))
sketch33.addConstraint(Sketcher.Constraint("Diameter", 1, Q("31.296142 mm")))
sketch33.addConstraint(Sketcher.Constraint("Diameter", 0, Q("33.229358 mm")))
pad33 = doc.addObject("PartDesign::Pad", "Pad032")
body.addObject(pad33)
pad33.Profile = sketch33
pad33.setExpression("Length", "Params.pad33_length")

sketch34 = doc.addObject("Sketcher::SketchObject", "Sketch033")
body.addObject(sketch34)
sketch34.AttachmentSupport = (doc.XY_Plane, [""])
sketch34.MapMode = "FlatFace"
sketch34.addGeometry(Part.Circle(Vector(0, 0, 0), Vector(0, 0, 1), 18), False)
sketch34.addGeometry(Part.Circle(Vector(0, 0, 0), Vector(0, 0, 1), 17), False)
sketch34.addConstraint(Sketcher.Constraint("Coincident", 0, 3, -1, 1))
sketch34.addConstraint(Sketcher.Constraint("Coincident", 1, 3, -1, 1))
sketch34.addConstraint(Sketcher.Constraint("Diameter", 0, Q("35.204264 mm")))
sketch34.addConstraint(Sketcher.Constraint("Diameter", 1, Q("33.229358 mm")))
pad34 = doc.addObject("PartDesign::Pad", "Pad033")
body.addObject(pad34)
pad34.Profile = sketch34
pad34.setExpression("Length", "Params.pad34_length")

sketch35 = doc.addObject("Sketcher::SketchObject", "Sketch034")
body.addObject(sketch35)
sketch35.AttachmentSupport = (doc.XY_Plane, [""])
sketch35.MapMode = "FlatFace"
sketch35.addGeometry(Part.Circle(Vector(0, 0, 0), Vector(0, 0, 1), 19), False)
sketch35.addGeometry(Part.Circle(Vector(0, 0, 0), Vector(0, 0, 1), 18), False)
sketch35.addConstraint(Sketcher.Constraint("Coincident", 0, 3, -1, 1))
sketch35.addConstraint(Sketcher.Constraint("Coincident", 1, 3, -1, 1))
sketch35.addConstraint(Sketcher.Constraint("Diameter", 0, Q("37.212134 mm")))
sketch35.addConstraint(Sketcher.Constraint("Diameter", 1, Q("35.204264 mm")))
pad35 = doc.addObject("PartDesign::Pad", "Pad034")
body.addObject(pad35)
pad35.Profile = sketch35
pad35.setExpression("Length", "Params.pad35_length")

sketch36 = doc.addObject("Sketcher::SketchObject", "Sketch035")
body.addObject(sketch36)
sketch36.AttachmentSupport = (doc.XY_Plane, [""])
sketch36.MapMode = "FlatFace"
sketch36.addGeometry(Part.Circle(Vector(0, 0, 0), Vector(0, 0, 1), 20), False)
sketch36.addGeometry(Part.Circle(Vector(0, 0, 0), Vector(0, 0, 1), 19), False)
sketch36.addConstraint(Sketcher.Constraint("Coincident", 0, 3, -1, 1))
sketch36.addConstraint(Sketcher.Constraint("Coincident", 1, 3, -1, 1))
sketch36.addConstraint(Sketcher.Constraint("Diameter", 0, Q("39.232072 mm")))
sketch36.addConstraint(Sketcher.Constraint("Diameter", 1, Q("37.212134 mm")))
pad36 = doc.addObject("PartDesign::Pad", "Pad035")
body.addObject(pad36)
pad36.Profile = sketch36
pad36.setExpression("Length", "Params.pad36_length")

sketch37 = doc.addObject("Sketcher::SketchObject", "Sketch036")
body.addObject(sketch37)
sketch37.AttachmentSupport = (doc.XY_Plane, [""])
sketch37.MapMode = "FlatFace"
sketch37.addGeometry(Part.Circle(Vector(0, 0, 0), Vector(0, 0, 1), 21), False)
sketch37.addGeometry(Part.Circle(Vector(0, 0, 0), Vector(0, 0, 1), 20), False)
sketch37.addConstraint(Sketcher.Constraint("Coincident", 0, 3, -1, 1))
sketch37.addConstraint(Sketcher.Constraint("Coincident", 1, 3, -1, 1))
sketch37.addConstraint(Sketcher.Constraint("Diameter", 0, Q("41.43138 mm")))
sketch37.addConstraint(Sketcher.Constraint("Diameter", 1, Q("39.232072 mm")))
pad37 = doc.addObject("PartDesign::Pad", "Pad036")
body.addObject(pad37)
pad37.Profile = sketch37
pad37.setExpression("Length", "Params.pad37_length")

sketch38 = doc.addObject("Sketcher::SketchObject", "Sketch037")
body.addObject(sketch38)
sketch38.AttachmentSupport = (doc.XY_Plane, [""])
sketch38.MapMode = "FlatFace"
sketch38.addGeometry(Part.Circle(Vector(0, 0, 0), Vector(0, 0, 1), 22), False)
sketch38.addGeometry(Part.Circle(Vector(0, 0, 0), Vector(0, 0, 1), 21), False)
sketch38.addConstraint(Sketcher.Constraint("Coincident", 0, 3, -1, 1))
sketch38.addConstraint(Sketcher.Constraint("Coincident", 1, 3, -1, 1))
sketch38.addConstraint(Sketcher.Constraint("Diameter", 1, Q("41.43138 mm")))
sketch38.addConstraint(Sketcher.Constraint("Diameter", 0, Q("43.550014 mm")))
pad38 = doc.addObject("PartDesign::Pad", "Pad037")
body.addObject(pad38)
pad38.Profile = sketch38
pad38.setExpression("Length", "Params.pad38_length")

sketch39 = doc.addObject("Sketcher::SketchObject", "Sketch038")
body.addObject(sketch39)
sketch39.AttachmentSupport = (doc.XY_Plane, [""])
sketch39.MapMode = "FlatFace"
sketch39.addGeometry(Part.Circle(Vector(0, 0, 0), Vector(0, 0, 1), 23), False)
sketch39.addGeometry(Part.Circle(Vector(0, 0, 0), Vector(0, 0, 1), 22), False)
sketch39.addConstraint(Sketcher.Constraint("Coincident", 0, 3, -1, 1))
sketch39.addConstraint(Sketcher.Constraint("Coincident", 1, 3, -1, 1))
sketch39.addConstraint(Sketcher.Constraint("Diameter", 0, Q("45.619656 mm")))
sketch39.addConstraint(Sketcher.Constraint("Diameter", 1, Q("43.550014 mm")))
pad39 = doc.addObject("PartDesign::Pad", "Pad038")
body.addObject(pad39)
pad39.Profile = sketch39
pad39.setExpression("Length", "Params.pad39_length")

doc.recompute()
